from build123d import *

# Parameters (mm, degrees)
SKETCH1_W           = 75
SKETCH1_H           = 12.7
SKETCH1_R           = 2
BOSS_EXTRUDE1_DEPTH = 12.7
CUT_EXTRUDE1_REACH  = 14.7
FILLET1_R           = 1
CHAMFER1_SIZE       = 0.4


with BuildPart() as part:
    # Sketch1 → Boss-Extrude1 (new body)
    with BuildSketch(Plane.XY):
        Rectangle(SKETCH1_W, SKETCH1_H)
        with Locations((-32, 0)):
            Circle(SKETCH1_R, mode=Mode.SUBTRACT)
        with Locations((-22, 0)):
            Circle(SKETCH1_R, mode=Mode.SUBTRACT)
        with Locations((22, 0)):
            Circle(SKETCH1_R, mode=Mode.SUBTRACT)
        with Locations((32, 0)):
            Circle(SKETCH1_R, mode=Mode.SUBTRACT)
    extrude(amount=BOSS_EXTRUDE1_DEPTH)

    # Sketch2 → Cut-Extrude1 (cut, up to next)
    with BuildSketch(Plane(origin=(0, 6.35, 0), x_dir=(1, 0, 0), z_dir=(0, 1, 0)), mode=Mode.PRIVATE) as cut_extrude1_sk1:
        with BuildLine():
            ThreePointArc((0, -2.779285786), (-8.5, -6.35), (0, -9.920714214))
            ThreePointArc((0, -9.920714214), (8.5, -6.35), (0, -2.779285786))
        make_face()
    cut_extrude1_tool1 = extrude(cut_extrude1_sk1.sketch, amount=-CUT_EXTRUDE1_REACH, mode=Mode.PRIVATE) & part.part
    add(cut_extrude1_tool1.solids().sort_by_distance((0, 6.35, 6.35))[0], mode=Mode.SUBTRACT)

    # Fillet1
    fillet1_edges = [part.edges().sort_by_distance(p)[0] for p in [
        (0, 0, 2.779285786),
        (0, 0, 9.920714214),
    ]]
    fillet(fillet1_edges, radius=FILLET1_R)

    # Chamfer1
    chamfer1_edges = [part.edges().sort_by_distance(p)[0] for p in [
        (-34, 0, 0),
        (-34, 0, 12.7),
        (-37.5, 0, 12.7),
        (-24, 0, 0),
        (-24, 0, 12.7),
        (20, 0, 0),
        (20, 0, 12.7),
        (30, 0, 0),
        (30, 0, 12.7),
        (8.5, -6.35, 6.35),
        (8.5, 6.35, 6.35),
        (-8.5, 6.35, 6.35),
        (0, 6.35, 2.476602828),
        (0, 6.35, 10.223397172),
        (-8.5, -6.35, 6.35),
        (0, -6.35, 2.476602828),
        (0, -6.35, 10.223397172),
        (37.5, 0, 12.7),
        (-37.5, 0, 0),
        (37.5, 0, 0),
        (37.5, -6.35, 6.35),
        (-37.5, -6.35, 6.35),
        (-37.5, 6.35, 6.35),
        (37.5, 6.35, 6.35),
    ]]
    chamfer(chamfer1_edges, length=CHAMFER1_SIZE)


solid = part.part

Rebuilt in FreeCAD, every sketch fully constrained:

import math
import FreeCAD as App
import Part
import Sketcher
from FreeCAD import Vector
Q = App.Units.Quantity


def edges_at(feature, points):
    """Names of the edges that pass closest to the given points."""
    edges = feature.Shape.Edges
    near = lambda p: min(range(len(edges)), key=lambda i: edges[i].distToShape(Part.Vertex(*p))[0])
    return sorted({f"Edge{near(p) + 1}" for p in points})


def add_polygon(sketch, points):
    """Adds a closed chain of lines whose ends are joined by coincident constraints."""
    first, n = sketch.GeometryCount, len(points)
    for a, b in zip(points, points[1:] + points[:1]):
        sketch.addGeometry(Part.LineSegment(App.Vector(*a, 0), App.Vector(*b, 0)), False)
    for i in range(n):
        sketch.addConstraint(Sketcher.Constraint("Coincident", first + i, 2, first + (i + 1) % n, 1))

doc = App.newDocument("Part")
body = doc.addObject("PartDesign::Body", "Body")

# Sketch on XY plane
sketch1 = body.newObject("Sketcher::SketchObject", "Sketch")
sketch1.AttachmentSupport = (doc.getObject("XY_Plane"), [""])
sketch1.MapMode = "FlatFace"
add_polygon(sketch1, [(-37.5, 6.3), (-37.5, -6.3), (37.5, -6.3), (37.5, 6.3)])  # lines 0-3
sketch1.addGeometry(Part.Circle(Vector(-32, 0, 0), Vector(0, 0, 1), 2), False)  # 4
sketch1.addGeometry(Part.Circle(Vector(-22, 0, 0), Vector(0, 0, 1), 2), False)  # 5
sketch1.addGeometry(Part.Circle(Vector(22, 0, 0), Vector(0, 0, 1), 2), False)  # 6
sketch1.addGeometry(Part.Circle(Vector(32, 0, 0), Vector(0, 0, 1), 2), False)  # 7
sketch1.addConstraint(Sketcher.Constraint("Vertical", 0))
sketch1.addConstraint(Sketcher.Constraint("Horizontal", 1))
sketch1.addConstraint(Sketcher.Constraint("Vertical", 2))
sketch1.addConstraint(Sketcher.Constraint("Horizontal", 3))
sketch1.addConstraint(Sketcher.Constraint("Equal", 4, 5))
sketch1.addConstraint(Sketcher.Constraint("Equal", 5, 6))
sketch1.addConstraint(Sketcher.Constraint("Equal", 6, 7))
sketch1.addConstraint(Sketcher.Constraint("Symmetric", 5, 3, 6, 3, -1, 1))
sketch1.addConstraint(Sketcher.Constraint("Symmetric", 4, 3, 7, 3, -1, 1))
sketch1.addConstraint(Sketcher.Constraint("Symmetric", 0, 2, 2, 2, -1, 1))
sketch1.addConstraint(Sketcher.Constraint("PointOnObject", 4, 3, -1))
sketch1.addConstraint(Sketcher.Constraint("PointOnObject", 5, 3, -1))
sketch1.addConstraint(Sketcher.Constraint("Diameter", 4, Q("4 mm")))
sketch1.addConstraint(Sketcher.Constraint("DistanceX", 1, 1, 1, 2, Q("75 mm")))
sketch1.addConstraint(Sketcher.Constraint("DistanceY", 0, 2, 0, 1, Q("12.7 mm")))
sketch1.addConstraint(Sketcher.Constraint("DistanceX", 4, 3, -1, 1, Q("32 mm")))
sketch1.addConstraint(Sketcher.Constraint("DistanceX", 5, 3, -1, 1, Q("22 mm")))
pad1 = body.newObject("PartDesign::Pad", "Pad")
pad1.Profile = sketch1
pad1.Length = 12.7

# Sketch on XZ plane
sketch2 = body.newObject("Sketcher::SketchObject", "Sketch001")
sketch2.AttachmentSupport = (doc.getObject("XZ_Plane"), [""])
sketch2.MapMode = "FlatFace"
sketch2.AttachmentOffset = App.Placement(Vector(0, 0, -6.35), App.Rotation())
sketch2.addGeometry(Part.ArcOfCircle(Part.Circle(Vector(-4, 6, 0), Vector(0, 0, 1), 5), math.radians(46), math.radians(314)), False)
sketch2.addGeometry(Part.ArcOfCircle(Part.Circle(Vector(4, 6, 0), Vector(0, 0, 1), 5), math.radians(-134), math.radians(134)), False)
sketch2.addConstraint(Sketcher.Constraint("Coincident", 0, 1, 1, 2))
sketch2.addConstraint(Sketcher.Constraint("Coincident", 1, 1, 0, 2))
sketch2.addConstraint(Sketcher.Constraint("Equal", 0, 1))
sketch2.addConstraint(Sketcher.Constraint("Symmetric", 0, 3, 1, 3, -2))
sketch2.addConstraint(Sketcher.Constraint("Radius", 0, Q("5 mm")))
sketch2.addConstraint(Sketcher.Constraint("DistanceX", 0, 3, 1, 3, Q("7 mm")))
sketch2.addConstraint(Sketcher.Constraint("DistanceY", -1, 1, 0, 3, Q("6.35 mm")))
pocket1 = body.newObject("PartDesign::Pocket", "Pocket")
pocket1.Profile = sketch2
pocket1.Type = "UpToFirst"
pocket1.Reversed = True
doc.recompute()

fillet = body.newObject("PartDesign::Fillet", "Fillet")
fillet.Base = (pocket1, edges_at(pocket1, [(0, 0, 2.779), (0, 0, 9.921)]))
fillet.Radius = 1
doc.recompute()

chamfer = body.newObject("PartDesign::Chamfer", "Chamfer")
chamfer.Base = (fillet, edges_at(fillet, [
    (-34, 0, 0),
    (-34, 0, 12.7),
    (-37.5, 0, 12.7),
    (-24, 0, 0),
    (-24, 0, 12.7),
    (20, 0, 0),
    (20, 0, 12.7),
    (30, 0, 0),
    (30, 0, 12.7),
    (8.5, -6.35, 6.35),
    (8.5, 6.35, 6.35),
    (-8.5, 6.35, 6.35),
    (0, 6.35, 2.477),
    (0, 6.35, 10.223),
    (-8.5, -6.35, 6.35),
    (0, -6.35, 2.477),
    (0, -6.35, 10.223),
    (37.5, 0, 12.7),
    (-37.5, 0, 0),
    (37.5, 0, 0),
    (37.5, -6.35, 6.35),
    (-37.5, -6.35, 6.35),
    (-37.5, 6.35, 6.35),
    (37.5, 6.35, 6.35),
]))
chamfer.Size = 0.4

doc.recompute()
